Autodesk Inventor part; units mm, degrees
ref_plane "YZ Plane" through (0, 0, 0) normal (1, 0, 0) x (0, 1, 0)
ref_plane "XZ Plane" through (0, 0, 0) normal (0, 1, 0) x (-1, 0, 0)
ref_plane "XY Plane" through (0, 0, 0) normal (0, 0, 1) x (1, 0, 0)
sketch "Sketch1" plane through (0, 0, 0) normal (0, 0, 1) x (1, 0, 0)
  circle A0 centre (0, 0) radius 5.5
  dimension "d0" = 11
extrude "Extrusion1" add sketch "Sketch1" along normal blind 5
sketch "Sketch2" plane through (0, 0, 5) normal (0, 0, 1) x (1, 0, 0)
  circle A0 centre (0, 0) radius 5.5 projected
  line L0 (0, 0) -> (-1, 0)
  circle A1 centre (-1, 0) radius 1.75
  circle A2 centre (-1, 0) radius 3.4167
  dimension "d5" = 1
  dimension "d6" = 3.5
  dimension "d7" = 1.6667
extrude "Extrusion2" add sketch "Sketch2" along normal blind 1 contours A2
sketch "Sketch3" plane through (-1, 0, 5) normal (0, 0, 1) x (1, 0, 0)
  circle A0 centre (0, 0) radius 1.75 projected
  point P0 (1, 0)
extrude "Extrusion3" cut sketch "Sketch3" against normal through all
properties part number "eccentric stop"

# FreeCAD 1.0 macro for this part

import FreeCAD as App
import Part
import Sketcher
from FreeCAD import Vector
Q = App.Units.Quantity

doc = App.newDocument("Part")
body = doc.addObject("PartDesign::Body", "Body")

# Sketch on XY plane
sketch1 = body.newObject("Sketcher::SketchObject", "Sketch")
sketch1.AttachmentSupport = (doc.getObject("XY_Plane"), [""])
sketch1.MapMode = "FlatFace"
sketch1.addGeometry(Part.Circle(Vector(0, 0, 0), Vector(0, 0, 1), 6), False)
sketch1.addConstraint([
    Sketcher.Constraint("Coincident", 0, 3, -1, 1),
    Sketcher.Constraint("Diameter", 0, Q("11 mm")),
])
pad1 = body.newObject("PartDesign::Pad", "Pad")
pad1.Profile = sketch1
pad1.Length = 5

# Sketch on XY plane
sketch2 = body.newObject("Sketcher::SketchObject", "Sketch001")
sketch2.AttachmentSupport = (doc.getObject("XY_Plane"), [""])
sketch2.MapMode = "FlatFace"
sketch2.AttachmentOffset = App.Placement(Vector(0, 0, 5), App.Rotation())
sketch2.addGeometry([
    Part.Circle(Vector(-1, 0, 0), Vector(0, 0, 1), 3.4),
    Part.Circle(Vector(-1, 0, 0), Vector(0, 0, 1), 1.8),
], False)
sketch2.addConstraint([
    Sketcher.Constraint("Coincident", 1, 3, 0, 3),
    Sketcher.Constraint("PointOnObject", 0, 3, -1),
    Sketcher.Constraint("Diameter", 1, Q("3.5 mm")),
    Sketcher.Constraint("DistanceX", 0, 3, -1, 1, Q("1 mm")),
    Sketcher.Constraint("Diameter", 0, Q("6.8334 mm")),
])
pad2 = body.newObject("PartDesign::Pad", "Pad001")
pad2.Profile = sketch2
pad2.Length = 1

# Sketch on XY plane
sketch3 = body.newObject("Sketcher::SketchObject", "Sketch002")
sketch3.AttachmentSupport = (doc.getObject("XY_Plane"), [""])
sketch3.MapMode = "FlatFace"
sketch3.AttachmentOffset = App.Placement(Vector(0, 0, 5), App.Rotation())
sketch3.addGeometry(Part.Circle(Vector(-1, 0, 0), Vector(0, 0, 1), 1.8), False)
sketch3.addConstraint([
    Sketcher.Constraint("PointOnObject", 0, 3, -1),
    Sketcher.Constraint("Diameter", 0, Q("3.5 mm")),
    Sketcher.Constraint("DistanceX", 0, 3, -1, 1, Q("1 mm")),
])
pocket1 = body.newObject("PartDesign::Pocket", "Pocket")
pocket1.Profile = sketch3
pocket1.Type = "ThroughAll"

doc.recompute()
